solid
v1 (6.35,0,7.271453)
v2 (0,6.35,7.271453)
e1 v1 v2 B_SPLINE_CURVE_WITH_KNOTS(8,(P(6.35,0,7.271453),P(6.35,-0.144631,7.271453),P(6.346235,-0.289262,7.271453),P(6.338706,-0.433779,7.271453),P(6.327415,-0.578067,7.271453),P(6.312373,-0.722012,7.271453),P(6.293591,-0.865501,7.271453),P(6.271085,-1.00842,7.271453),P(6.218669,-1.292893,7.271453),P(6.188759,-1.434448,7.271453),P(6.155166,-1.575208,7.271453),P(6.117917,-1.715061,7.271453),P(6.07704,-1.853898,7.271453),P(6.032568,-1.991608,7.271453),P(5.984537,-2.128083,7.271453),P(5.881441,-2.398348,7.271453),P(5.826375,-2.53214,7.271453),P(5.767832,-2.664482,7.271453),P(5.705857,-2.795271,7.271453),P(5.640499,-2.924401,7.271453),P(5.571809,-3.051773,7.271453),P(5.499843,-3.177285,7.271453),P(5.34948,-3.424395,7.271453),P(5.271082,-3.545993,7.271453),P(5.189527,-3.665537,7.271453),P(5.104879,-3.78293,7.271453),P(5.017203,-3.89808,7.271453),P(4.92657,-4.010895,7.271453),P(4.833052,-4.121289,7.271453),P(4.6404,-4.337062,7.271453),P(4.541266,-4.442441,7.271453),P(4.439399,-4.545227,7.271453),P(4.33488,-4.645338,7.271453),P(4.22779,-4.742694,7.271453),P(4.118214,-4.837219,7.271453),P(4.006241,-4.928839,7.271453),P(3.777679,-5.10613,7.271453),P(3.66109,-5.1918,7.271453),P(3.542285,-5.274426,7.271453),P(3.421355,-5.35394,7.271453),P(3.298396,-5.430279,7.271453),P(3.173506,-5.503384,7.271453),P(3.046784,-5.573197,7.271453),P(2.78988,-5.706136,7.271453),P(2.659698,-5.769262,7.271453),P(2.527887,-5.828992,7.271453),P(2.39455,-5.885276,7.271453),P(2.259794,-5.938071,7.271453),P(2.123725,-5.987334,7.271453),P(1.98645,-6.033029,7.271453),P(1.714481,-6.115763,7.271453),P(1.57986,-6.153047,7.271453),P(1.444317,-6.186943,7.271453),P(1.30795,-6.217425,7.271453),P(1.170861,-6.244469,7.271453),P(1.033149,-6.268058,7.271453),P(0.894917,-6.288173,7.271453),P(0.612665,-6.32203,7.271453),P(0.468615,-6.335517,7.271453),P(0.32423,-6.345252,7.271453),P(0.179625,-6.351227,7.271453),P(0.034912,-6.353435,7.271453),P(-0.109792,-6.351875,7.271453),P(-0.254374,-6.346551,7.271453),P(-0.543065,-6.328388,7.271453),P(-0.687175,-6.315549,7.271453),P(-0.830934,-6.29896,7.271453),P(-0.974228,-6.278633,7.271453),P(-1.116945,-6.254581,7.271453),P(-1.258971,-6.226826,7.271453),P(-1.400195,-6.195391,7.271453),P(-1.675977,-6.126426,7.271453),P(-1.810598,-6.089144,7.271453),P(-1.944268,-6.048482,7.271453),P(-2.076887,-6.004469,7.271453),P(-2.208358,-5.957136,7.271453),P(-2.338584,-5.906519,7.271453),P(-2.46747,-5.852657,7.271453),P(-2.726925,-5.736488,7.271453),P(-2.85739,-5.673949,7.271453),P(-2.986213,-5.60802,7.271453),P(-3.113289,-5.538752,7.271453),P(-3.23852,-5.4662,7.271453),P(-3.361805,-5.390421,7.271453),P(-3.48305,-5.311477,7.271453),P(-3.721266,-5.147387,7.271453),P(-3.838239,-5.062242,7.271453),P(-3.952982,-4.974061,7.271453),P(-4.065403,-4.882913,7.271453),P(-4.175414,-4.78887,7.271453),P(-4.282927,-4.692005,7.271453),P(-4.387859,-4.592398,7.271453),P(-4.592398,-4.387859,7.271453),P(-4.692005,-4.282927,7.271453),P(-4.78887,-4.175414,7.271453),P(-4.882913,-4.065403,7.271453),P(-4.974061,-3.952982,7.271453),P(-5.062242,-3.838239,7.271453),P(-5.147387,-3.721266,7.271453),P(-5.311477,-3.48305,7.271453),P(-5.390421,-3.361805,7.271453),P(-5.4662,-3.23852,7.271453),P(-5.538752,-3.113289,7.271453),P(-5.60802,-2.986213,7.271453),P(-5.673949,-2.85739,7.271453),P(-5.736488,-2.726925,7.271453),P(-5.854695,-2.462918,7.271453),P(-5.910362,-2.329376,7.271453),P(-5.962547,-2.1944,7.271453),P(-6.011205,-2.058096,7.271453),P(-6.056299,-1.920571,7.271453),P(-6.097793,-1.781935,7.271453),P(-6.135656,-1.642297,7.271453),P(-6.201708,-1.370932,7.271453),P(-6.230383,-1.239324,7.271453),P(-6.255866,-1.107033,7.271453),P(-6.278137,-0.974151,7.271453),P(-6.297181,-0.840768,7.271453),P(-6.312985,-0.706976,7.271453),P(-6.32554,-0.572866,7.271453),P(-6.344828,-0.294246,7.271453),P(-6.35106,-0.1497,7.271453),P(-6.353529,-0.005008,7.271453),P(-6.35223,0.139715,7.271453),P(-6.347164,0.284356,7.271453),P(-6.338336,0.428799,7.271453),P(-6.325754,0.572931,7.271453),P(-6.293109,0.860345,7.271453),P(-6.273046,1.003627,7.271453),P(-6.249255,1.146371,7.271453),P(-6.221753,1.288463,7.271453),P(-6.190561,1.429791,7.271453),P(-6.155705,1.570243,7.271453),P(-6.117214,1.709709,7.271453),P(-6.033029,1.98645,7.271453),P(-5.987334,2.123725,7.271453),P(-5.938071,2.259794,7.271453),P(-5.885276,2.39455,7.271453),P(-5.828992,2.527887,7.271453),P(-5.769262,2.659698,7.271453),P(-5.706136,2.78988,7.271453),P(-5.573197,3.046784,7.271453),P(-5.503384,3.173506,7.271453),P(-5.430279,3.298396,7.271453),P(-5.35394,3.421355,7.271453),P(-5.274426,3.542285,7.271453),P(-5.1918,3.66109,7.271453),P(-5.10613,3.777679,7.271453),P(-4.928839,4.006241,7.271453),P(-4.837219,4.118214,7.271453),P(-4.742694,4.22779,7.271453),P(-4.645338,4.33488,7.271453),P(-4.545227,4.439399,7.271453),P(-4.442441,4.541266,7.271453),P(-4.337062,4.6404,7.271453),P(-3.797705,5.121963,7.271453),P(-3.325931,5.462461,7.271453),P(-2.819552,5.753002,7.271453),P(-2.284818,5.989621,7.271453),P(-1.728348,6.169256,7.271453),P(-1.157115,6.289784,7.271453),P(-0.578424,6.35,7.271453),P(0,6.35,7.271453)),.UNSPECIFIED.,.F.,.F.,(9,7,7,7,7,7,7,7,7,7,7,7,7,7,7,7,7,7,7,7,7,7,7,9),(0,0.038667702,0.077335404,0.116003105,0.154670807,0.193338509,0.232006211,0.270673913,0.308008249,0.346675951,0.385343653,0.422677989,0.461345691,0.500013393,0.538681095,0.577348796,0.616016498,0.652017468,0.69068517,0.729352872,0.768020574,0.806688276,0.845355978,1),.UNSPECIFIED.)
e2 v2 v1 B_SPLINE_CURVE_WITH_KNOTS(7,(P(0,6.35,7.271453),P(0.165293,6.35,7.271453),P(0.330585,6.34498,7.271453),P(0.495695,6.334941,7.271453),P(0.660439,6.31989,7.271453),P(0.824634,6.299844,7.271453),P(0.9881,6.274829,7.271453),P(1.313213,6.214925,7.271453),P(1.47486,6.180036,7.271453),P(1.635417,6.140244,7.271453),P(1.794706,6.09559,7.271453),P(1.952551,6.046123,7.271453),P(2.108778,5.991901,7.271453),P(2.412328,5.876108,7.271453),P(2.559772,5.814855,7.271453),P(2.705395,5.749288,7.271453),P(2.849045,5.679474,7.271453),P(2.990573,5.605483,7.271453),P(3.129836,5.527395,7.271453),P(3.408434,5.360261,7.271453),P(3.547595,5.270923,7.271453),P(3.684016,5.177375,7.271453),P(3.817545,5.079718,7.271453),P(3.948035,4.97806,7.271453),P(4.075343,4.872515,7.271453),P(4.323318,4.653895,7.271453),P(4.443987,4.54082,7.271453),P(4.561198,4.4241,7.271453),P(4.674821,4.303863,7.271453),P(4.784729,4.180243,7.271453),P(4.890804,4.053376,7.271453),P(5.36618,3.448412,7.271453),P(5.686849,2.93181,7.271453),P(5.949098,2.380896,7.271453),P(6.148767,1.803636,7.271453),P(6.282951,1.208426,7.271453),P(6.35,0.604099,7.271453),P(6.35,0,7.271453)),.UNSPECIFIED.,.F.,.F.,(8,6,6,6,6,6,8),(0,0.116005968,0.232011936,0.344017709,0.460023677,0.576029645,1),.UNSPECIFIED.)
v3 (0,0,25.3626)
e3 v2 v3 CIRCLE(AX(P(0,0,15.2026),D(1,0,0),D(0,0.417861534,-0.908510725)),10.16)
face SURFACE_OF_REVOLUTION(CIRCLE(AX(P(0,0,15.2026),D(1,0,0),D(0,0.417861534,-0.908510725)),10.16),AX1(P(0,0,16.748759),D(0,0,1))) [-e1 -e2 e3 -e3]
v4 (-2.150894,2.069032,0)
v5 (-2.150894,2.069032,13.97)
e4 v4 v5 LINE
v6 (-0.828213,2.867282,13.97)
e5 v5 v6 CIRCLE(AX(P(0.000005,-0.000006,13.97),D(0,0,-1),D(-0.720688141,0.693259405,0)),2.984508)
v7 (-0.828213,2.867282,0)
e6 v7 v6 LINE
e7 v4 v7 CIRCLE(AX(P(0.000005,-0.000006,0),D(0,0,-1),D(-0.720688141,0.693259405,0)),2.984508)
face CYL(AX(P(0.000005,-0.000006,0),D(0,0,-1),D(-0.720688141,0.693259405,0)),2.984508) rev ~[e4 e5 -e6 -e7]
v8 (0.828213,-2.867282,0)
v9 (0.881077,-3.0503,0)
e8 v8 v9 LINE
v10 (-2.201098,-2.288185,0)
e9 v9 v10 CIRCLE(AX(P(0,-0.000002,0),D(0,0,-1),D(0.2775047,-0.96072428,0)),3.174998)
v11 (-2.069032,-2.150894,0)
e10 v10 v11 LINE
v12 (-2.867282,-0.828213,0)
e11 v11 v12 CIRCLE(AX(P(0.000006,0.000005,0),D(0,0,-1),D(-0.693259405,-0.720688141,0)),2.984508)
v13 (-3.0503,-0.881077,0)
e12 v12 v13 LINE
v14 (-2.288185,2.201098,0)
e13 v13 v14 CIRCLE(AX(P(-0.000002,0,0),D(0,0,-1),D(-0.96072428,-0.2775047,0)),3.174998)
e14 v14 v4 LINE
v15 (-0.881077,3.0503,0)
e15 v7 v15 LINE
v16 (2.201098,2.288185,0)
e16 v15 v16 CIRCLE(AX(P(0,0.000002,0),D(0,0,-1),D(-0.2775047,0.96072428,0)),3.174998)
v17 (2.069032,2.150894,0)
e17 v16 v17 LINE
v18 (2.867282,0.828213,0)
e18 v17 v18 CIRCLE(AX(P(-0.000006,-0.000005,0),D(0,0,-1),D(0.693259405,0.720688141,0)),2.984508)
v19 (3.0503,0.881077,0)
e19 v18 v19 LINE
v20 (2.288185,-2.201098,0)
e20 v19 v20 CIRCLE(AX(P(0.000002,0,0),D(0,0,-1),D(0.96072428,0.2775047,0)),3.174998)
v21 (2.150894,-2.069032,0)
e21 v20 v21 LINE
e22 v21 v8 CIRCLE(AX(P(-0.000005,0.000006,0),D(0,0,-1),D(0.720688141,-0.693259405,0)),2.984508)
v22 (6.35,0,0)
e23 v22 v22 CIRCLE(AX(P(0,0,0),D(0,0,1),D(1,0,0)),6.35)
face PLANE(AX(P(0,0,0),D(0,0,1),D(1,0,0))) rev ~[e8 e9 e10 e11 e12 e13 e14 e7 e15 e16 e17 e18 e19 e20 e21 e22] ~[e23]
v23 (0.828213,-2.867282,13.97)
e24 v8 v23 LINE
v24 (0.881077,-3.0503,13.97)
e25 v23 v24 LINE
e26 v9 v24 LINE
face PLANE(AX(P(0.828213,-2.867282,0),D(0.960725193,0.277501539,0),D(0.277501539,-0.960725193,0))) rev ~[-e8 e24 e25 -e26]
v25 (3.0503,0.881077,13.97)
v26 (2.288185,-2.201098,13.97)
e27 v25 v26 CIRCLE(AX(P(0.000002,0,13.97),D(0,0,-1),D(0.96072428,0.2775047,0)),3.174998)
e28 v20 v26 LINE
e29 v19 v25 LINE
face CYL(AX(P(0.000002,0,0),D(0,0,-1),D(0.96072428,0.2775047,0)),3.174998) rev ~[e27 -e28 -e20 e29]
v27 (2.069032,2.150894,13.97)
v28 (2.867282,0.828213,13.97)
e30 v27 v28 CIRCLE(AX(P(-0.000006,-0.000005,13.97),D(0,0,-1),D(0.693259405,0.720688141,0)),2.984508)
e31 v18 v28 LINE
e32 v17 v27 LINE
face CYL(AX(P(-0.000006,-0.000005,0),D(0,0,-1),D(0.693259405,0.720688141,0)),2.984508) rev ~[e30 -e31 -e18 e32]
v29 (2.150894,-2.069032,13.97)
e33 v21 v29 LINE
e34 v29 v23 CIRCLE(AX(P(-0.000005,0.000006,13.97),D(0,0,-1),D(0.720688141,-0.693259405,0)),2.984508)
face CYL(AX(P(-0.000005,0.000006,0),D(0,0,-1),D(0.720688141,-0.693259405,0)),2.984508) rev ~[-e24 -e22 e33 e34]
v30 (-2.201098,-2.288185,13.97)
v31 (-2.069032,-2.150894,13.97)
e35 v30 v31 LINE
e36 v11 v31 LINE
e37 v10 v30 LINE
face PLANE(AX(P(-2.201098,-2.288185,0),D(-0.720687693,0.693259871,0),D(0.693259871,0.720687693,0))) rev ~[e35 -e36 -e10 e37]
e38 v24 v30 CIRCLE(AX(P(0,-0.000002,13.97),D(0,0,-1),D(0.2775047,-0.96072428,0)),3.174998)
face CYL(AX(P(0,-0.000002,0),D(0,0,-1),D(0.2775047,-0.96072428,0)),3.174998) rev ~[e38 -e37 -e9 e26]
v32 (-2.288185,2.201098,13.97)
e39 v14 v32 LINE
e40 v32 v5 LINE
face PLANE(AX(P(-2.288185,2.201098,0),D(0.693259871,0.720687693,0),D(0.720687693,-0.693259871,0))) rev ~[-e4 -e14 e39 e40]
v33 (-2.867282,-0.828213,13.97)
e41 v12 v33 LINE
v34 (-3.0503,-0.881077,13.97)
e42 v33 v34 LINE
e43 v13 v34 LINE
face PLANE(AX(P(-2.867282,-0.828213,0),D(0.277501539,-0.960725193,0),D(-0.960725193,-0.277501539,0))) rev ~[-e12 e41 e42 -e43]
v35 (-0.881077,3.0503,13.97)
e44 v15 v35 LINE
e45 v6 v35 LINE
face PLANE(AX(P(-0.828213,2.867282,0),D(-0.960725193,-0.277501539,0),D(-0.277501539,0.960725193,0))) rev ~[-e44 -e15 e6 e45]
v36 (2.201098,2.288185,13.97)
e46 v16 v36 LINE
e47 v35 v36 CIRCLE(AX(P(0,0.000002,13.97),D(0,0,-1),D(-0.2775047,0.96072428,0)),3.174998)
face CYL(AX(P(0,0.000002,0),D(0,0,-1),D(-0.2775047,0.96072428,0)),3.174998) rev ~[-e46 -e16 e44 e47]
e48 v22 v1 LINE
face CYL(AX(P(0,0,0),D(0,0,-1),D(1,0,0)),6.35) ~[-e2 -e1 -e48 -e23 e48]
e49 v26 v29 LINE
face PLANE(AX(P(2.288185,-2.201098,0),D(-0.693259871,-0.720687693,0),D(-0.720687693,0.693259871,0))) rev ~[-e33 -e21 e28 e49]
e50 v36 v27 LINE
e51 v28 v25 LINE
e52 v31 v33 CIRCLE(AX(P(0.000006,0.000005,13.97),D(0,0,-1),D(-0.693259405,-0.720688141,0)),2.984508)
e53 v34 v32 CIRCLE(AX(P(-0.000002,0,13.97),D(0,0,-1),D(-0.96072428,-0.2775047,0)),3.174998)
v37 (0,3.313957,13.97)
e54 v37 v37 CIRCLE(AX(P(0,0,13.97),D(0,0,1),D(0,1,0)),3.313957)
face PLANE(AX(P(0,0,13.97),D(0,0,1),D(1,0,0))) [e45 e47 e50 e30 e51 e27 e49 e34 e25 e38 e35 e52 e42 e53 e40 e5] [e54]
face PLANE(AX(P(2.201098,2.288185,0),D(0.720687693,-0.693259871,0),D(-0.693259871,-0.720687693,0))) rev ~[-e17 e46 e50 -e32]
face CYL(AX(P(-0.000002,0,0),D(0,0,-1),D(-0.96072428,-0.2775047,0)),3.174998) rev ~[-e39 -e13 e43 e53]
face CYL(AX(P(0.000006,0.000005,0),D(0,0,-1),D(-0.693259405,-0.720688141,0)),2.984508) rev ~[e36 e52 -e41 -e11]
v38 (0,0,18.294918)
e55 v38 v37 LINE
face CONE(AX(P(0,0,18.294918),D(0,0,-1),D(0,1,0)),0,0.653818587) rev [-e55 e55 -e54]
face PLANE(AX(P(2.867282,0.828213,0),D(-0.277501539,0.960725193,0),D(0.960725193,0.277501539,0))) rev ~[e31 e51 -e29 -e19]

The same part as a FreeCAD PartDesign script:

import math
import FreeCAD as App
import Part
import Sketcher

V = App.Vector
Q = App.Units.Quantity

doc = App.newDocument("Part")
body = doc.addObject("PartDesign::Body", "Body")

sketch1 = body.newObject("Sketcher::SketchObject", "Sketch")
sketch1.AttachmentSupport = (doc.getObject("XY_Plane"), [""])
sketch1.MapMode = "FlatFace"
sketch1.addGeometry([
    Part.Circle(V(0, 0, 0), V(0, 0, 1), 6.35),
    Part.LineSegment(V(2.87, 0.83, 0), V(3.05, 0.88, 0)),
    Part.ArcOfCircle(Part.Circle(V(0, 0, 0), V(0, 0, 1), 3.17), math.radians(-44), math.radians(16)),
    Part.LineSegment(V(2.29, -2.2, 0), V(2.15, -2.07, 0)),
    Part.ArcOfCircle(Part.Circle(V(0, 0, 0), V(0, 0, 1), 2.98), math.radians(-74), math.radians(-44)),
    Part.LineSegment(V(0.83, -2.87, 0), V(0.88, -3.05, 0)),
    Part.ArcOfCircle(Part.Circle(V(0, 0, 0), V(0, 0, 1), 3.17), math.radians(-134), math.radians(-74)),
    Part.LineSegment(V(-2.2, -2.29, 0), V(-2.07, -2.15, 0)),
    Part.ArcOfCircle(Part.Circle(V(0, 0, 0), V(0, 0, 1), 2.98), math.radians(-164), math.radians(-134)),
    Part.LineSegment(V(-2.87, -0.83, 0), V(-3.05, -0.88, 0)),
    Part.ArcOfCircle(Part.Circle(V(0, 0, 0), V(0, 0, 1), 3.17), math.radians(136), math.radians(196)),
    Part.LineSegment(V(-2.29, 2.2, 0), V(-2.15, 2.07, 0)),
    Part.ArcOfCircle(Part.Circle(V(0, 0, 0), V(0, 0, 1), 2.98), math.radians(106), math.radians(136)),
    Part.LineSegment(V(-0.83, 2.87, 0), V(-0.88, 3.05, 0)),
    Part.ArcOfCircle(Part.Circle(V(0, 0, 0), V(0, 0, 1), 3.17), math.radians(46), math.radians(106)),
    Part.LineSegment(V(2.2, 2.29, 0), V(2.07, 2.15, 0)),
    Part.ArcOfCircle(Part.Circle(V(0, 0, 0), V(0, 0, 1), 2.98), math.radians(16), math.radians(46)),
], False)
sketch1.addConstraint([
    Sketcher.Constraint("Coincident", 1, 2, 2, 2),
    Sketcher.Constraint("Coincident", 2, 1, 3, 1),
    Sketcher.Constraint("Coincident", 3, 2, 4, 2),
    Sketcher.Constraint("Coincident", 4, 1, 5, 1),
    Sketcher.Constraint("Coincident", 5, 2, 6, 2),
    Sketcher.Constraint("Coincident", 6, 1, 7, 1),
    Sketcher.Constraint("Coincident", 7, 2, 8, 2),
    Sketcher.Constraint("Coincident", 8, 1, 9, 1),
    Sketcher.Constraint("Coincident", 9, 2, 10, 2),
    Sketcher.Constraint("Coincident", 10, 1, 11, 1),
    Sketcher.Constraint("Coincident", 11, 2, 12, 2),
    Sketcher.Constraint("Coincident", 12, 1, 13, 1),
    Sketcher.Constraint("Coincident", 13, 2, 14, 2),
    Sketcher.Constraint("Coincident", 14, 1, 15, 1),
    Sketcher.Constraint("Coincident", 15, 2, 16, 2),
    Sketcher.Constraint("Coincident", 16, 1, 1, 1),
    Sketcher.Constraint("Coincident", 0, 3, -1, 1),
    Sketcher.Constraint("Coincident", 2, 3, -1, 1),
    Sketcher.Constraint("Coincident", 4, 3, -1, 1),
    Sketcher.Constraint("Coincident", 6, 3, -1, 1),
    Sketcher.Constraint("Coincident", 8, 3, -1, 1),
    Sketcher.Constraint("Coincident", 10, 3, -1, 1),
    Sketcher.Constraint("Coincident", 12, 3, -1, 1),
    Sketcher.Constraint("Coincident", 14, 3, -1, 1),
    Sketcher.Constraint("Coincident", 16, 3, -1, 1),
    Sketcher.Constraint("Equal", 2, 6),
    Sketcher.Constraint("Equal", 4, 8),
    Sketcher.Constraint("Equal", 6, 10),
    Sketcher.Constraint("Equal", 8, 12),
    Sketcher.Constraint("Equal", 10, 14),
    Sketcher.Constraint("Equal", 12, 16),
    Sketcher.Constraint("Perpendicular", 1, 5),
    Sketcher.Constraint("Perpendicular", 3, 7),
    Sketcher.Constraint("Perpendicular", 5, 9),
    Sketcher.Constraint("Perpendicular", 7, 11),
    Sketcher.Constraint("Perpendicular", 9, 13),
    Sketcher.Constraint("Perpendicular", 11, 15),
    Sketcher.Constraint("Diameter", 0, Q("0.5 in")),
    Sketcher.Constraint("Radius", 2, Q("0.1249999 in")),
    Sketcher.Constraint("Distance", 1, Q("0.0075 in")),
    Sketcher.Constraint("DistanceX", -1, 1, 1, 2, Q("3.0503 mm")),
    Sketcher.Constraint("DistanceY", 2, 1, -1, 1, Q("2.201098 mm")),
    Sketcher.Constraint("DistanceY", 5, 2, -1, 1, Q("3.0503 mm")),
    Sketcher.Constraint("DistanceX", 6, 1, -1, 1, Q("2.201098 mm")),
    Sketcher.Constraint("DistanceX", 9, 2, -1, 1, Q("3.0503 mm")),
    Sketcher.Constraint("DistanceY", -1, 1, 10, 1, Q("2.201098 mm")),
    Sketcher.Constraint("DistanceY", -1, 1, 13, 2, Q("3.0503 mm")),
    Sketcher.Constraint("DistanceX", -1, 1, 14, 1, Q("2.201098 mm")),
    Sketcher.Constraint("DistanceY", 3, 2, -1, 1, Q("2.069032 mm")),
    Sketcher.Constraint("DistanceX", 4, 1, 3, 2, Q("1.322681 mm")),
])
pad1 = body.newObject("PartDesign::Pad", "Pad")
pad1.Profile = sketch1
pad1.Length = Q("0.55 in")

sketch2 = body.newObject("Sketcher::SketchObject", "Sketch001")
sketch2.AttachmentSupport = (doc.getObject("YZ_Plane"), [""])
sketch2.MapMode = "FlatFace"
sketch2.addGeometry([
    Part.LineSegment(V(3, 14, 0), V(4, 6, 0)),
    Part.ArcOfCircle(Part.Circle(V(0, 15, 0), V(0, 0, 1), 10), math.radians(-65), math.radians(90)),
    Part.LineSegment(V(0, 25, 0), V(0, 18, 0)),
    Part.LineSegment(V(0, 18, 0), V(3, 14, 0)),
], False)
sketch2.addConstraint([
    Sketcher.Constraint("Coincident", 0, 2, 1, 1),
    Sketcher.Constraint("Coincident", 1, 2, 2, 1),
    Sketcher.Constraint("Coincident", 2, 2, 3, 1),
    Sketcher.Constraint("Coincident", 3, 2, 0, 1),
    Sketcher.Constraint("Vertical", 2),
    Sketcher.Constraint("PointOnObject", 1, 3, -2),
    Sketcher.Constraint("PointOnObject", 1, 2, -2),
    Sketcher.Constraint("Radius", 1, Q("0.4 in")),
    Sketcher.Constraint("DistanceY", -1, 1, 3, 2, Q("0.55 in")),
    Sketcher.Constraint("Distance", 3, Q("5.448599 mm")),
    Sketcher.Constraint("DistanceY", -1, 1, 1, 3, Q("15.2026 mm")),
    Sketcher.Constraint("DistanceY", 2, 2, 2, 1, Q("7.067682 mm")),
    Sketcher.Constraint("DistanceY", -1, 1, 0, 2, Q("5.972131 mm")),
])
revolution = body.newObject("PartDesign::Revolution", "Revolution")
revolution.Profile = sketch2
revolution.ReferenceAxis = (sketch2, ["V_Axis"])
revolution.Angle = 360

doc.recompute()
